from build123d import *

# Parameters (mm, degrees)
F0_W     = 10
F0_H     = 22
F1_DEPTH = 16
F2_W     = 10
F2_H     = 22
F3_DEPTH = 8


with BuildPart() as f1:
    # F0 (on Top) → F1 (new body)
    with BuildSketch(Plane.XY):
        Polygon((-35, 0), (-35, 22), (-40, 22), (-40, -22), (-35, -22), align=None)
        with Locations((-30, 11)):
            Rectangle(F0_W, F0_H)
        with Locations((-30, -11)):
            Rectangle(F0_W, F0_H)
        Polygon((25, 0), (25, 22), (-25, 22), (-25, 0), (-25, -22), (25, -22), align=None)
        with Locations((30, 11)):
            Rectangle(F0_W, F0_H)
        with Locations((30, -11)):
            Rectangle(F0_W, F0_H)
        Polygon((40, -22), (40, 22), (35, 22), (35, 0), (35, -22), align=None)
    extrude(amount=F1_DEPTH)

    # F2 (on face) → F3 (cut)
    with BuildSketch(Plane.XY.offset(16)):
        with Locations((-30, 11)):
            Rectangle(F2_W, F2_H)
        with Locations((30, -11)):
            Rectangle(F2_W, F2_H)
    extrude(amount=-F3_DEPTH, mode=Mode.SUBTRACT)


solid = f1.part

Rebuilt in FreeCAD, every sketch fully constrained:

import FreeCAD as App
import Part
import Sketcher
from FreeCAD import Vector

doc = App.newDocument("Part")
body = doc.addObject("PartDesign::Body", "Body")

# Sketch on XY plane
sketch1 = body.newObject("Sketcher::SketchObject", "Sketch")
sketch1.AttachmentSupport = (doc.getObject("XY_Plane"), [""])
sketch1.MapMode = "FlatFace"
sketch1.addGeometry(Part.LineSegment(Vector(-40, 22, 0), Vector(-40, -22, 0)), False)
sketch1.addGeometry(Part.LineSegment(Vector(-40, -22, 0), Vector(40, -22, 0)), False)
sketch1.addGeometry(Part.LineSegment(Vector(40, -22, 0), Vector(40, 22, 0)), False)
sketch1.addGeometry(Part.LineSegment(Vector(40, 22, 0), Vector(-40, 22, 0)), False)
sketch1.addConstraint(Sketcher.Constraint("Coincident", 0, 2, 1, 1))
sketch1.addConstraint(Sketcher.Constraint("Coincident", 1, 2, 2, 1))
sketch1.addConstraint(Sketcher.Constraint("Coincident", 2, 2, 3, 1))
sketch1.addConstraint(Sketcher.Constraint("Coincident", 3, 2, 0, 1))
sketch1.addConstraint(Sketcher.Constraint("Vertical", 0))
sketch1.addConstraint(Sketcher.Constraint("Horizontal", 1))
sketch1.addConstraint(Sketcher.Constraint("Vertical", 2))
sketch1.addConstraint(Sketcher.Constraint("Horizontal", 3))
sketch1.addConstraint(Sketcher.Constraint("Symmetric", 0, 2, 2, 2, -1, 1))
sketch1.addConstraint(Sketcher.Constraint("DistanceX", 1, 1, 1, 2, 80.0))
sketch1.addConstraint(Sketcher.Constraint("DistanceY", 0, 2, 0, 1, 44.0))
pad1 = body.newObject("PartDesign::Pad", "Pad")
pad1.Profile = sketch1
pad1.Length = 16

# Sketch on XY plane
sketch2 = body.newObject("Sketcher::SketchObject", "Sketch001")
sketch2.AttachmentSupport = (doc.getObject("XY_Plane"), [""])
sketch2.MapMode = "FlatFace"
sketch2.AttachmentOffset = App.Placement(Vector(0, 0, 16), App.Rotation())
sketch2.addGeometry(Part.LineSegment(Vector(-35, 22, 0), Vector(-35, 0, 0)), False)
sketch2.addGeometry(Part.LineSegment(Vector(-35, 0, 0), Vector(-25, 0, 0)), False)
sketch2.addGeometry(Part.LineSegment(Vector(-25, 0, 0), Vector(-25, 22, 0)), False)
sketch2.addGeometry(Part.LineSegment(Vector(-25, 22, 0), Vector(-35, 22, 0)), False)
sketch2.addGeometry(Part.LineSegment(Vector(25, 0, 0), Vector(25, -22, 0)), False)
sketch2.addGeometry(Part.LineSegment(Vector(25, -22, 0), Vector(35, -22, 0)), False)
sketch2.addGeometry(Part.LineSegment(Vector(35, -22, 0), Vector(35, 0, 0)), False)
sketch2.addGeometry(Part.LineSegment(Vector(35, 0, 0), Vector(25, 0, 0)), False)
sketch2.addConstraint(Sketcher.Constraint("Coincident", 0, 2, 1, 1))
sketch2.addConstraint(Sketcher.Constraint("Coincident", 1, 2, 2, 1))
sketch2.addConstraint(Sketcher.Constraint("Coincident", 2, 2, 3, 1))
sketch2.addConstraint(Sketcher.Constraint("Coincident", 3, 2, 0, 1))
sketch2.addConstraint(Sketcher.Constraint("Coincident", 4, 2, 5, 1))
sketch2.addConstraint(Sketcher.Constraint("Coincident", 5, 2, 6, 1))
sketch2.addConstraint(Sketcher.Constraint("Coincident", 6, 2, 7, 1))
sketch2.addConstraint(Sketcher.Constraint("Coincident", 7, 2, 4, 1))
sketch2.addConstraint(Sketcher.Constraint("Vertical", 0))
sketch2.addConstraint(Sketcher.Constraint("Horizontal", 1))
sketch2.addConstraint(Sketcher.Constraint("Vertical", 2))
sketch2.addConstraint(Sketcher.Constraint("Horizontal", 3))
sketch2.addConstraint(Sketcher.Constraint("Vertical", 4))
sketch2.addConstraint(Sketcher.Constraint("Horizontal", 5))
sketch2.addConstraint(Sketcher.Constraint("Vertical", 6))
sketch2.addConstraint(Sketcher.Constraint("Horizontal", 7))
sketch2.addConstraint(Sketcher.Constraint("Symmetric", 2, 2, 4, 2, -1, 1))
sketch2.addConstraint(Sketcher.Constraint("Symmetric", 0, 2, 6, 2, -1, 1))
sketch2.addConstraint(Sketcher.Constraint("PointOnObject", 0, 2, -1))
sketch2.addConstraint(Sketcher.Constraint("DistanceX", 1, 1, 1, 2, 10.0))
sketch2.addConstraint(Sketcher.Constraint("DistanceY", 0, 2, 0, 1, 22.0))
sketch2.addConstraint(Sketcher.Constraint("DistanceX", 0, 2, -1, 1, 35.0))
pocket1 = body.newObject("PartDesign::Pocket", "Pocket")
pocket1.Profile = sketch2
pocket1.Length = 8

doc.recompute()
